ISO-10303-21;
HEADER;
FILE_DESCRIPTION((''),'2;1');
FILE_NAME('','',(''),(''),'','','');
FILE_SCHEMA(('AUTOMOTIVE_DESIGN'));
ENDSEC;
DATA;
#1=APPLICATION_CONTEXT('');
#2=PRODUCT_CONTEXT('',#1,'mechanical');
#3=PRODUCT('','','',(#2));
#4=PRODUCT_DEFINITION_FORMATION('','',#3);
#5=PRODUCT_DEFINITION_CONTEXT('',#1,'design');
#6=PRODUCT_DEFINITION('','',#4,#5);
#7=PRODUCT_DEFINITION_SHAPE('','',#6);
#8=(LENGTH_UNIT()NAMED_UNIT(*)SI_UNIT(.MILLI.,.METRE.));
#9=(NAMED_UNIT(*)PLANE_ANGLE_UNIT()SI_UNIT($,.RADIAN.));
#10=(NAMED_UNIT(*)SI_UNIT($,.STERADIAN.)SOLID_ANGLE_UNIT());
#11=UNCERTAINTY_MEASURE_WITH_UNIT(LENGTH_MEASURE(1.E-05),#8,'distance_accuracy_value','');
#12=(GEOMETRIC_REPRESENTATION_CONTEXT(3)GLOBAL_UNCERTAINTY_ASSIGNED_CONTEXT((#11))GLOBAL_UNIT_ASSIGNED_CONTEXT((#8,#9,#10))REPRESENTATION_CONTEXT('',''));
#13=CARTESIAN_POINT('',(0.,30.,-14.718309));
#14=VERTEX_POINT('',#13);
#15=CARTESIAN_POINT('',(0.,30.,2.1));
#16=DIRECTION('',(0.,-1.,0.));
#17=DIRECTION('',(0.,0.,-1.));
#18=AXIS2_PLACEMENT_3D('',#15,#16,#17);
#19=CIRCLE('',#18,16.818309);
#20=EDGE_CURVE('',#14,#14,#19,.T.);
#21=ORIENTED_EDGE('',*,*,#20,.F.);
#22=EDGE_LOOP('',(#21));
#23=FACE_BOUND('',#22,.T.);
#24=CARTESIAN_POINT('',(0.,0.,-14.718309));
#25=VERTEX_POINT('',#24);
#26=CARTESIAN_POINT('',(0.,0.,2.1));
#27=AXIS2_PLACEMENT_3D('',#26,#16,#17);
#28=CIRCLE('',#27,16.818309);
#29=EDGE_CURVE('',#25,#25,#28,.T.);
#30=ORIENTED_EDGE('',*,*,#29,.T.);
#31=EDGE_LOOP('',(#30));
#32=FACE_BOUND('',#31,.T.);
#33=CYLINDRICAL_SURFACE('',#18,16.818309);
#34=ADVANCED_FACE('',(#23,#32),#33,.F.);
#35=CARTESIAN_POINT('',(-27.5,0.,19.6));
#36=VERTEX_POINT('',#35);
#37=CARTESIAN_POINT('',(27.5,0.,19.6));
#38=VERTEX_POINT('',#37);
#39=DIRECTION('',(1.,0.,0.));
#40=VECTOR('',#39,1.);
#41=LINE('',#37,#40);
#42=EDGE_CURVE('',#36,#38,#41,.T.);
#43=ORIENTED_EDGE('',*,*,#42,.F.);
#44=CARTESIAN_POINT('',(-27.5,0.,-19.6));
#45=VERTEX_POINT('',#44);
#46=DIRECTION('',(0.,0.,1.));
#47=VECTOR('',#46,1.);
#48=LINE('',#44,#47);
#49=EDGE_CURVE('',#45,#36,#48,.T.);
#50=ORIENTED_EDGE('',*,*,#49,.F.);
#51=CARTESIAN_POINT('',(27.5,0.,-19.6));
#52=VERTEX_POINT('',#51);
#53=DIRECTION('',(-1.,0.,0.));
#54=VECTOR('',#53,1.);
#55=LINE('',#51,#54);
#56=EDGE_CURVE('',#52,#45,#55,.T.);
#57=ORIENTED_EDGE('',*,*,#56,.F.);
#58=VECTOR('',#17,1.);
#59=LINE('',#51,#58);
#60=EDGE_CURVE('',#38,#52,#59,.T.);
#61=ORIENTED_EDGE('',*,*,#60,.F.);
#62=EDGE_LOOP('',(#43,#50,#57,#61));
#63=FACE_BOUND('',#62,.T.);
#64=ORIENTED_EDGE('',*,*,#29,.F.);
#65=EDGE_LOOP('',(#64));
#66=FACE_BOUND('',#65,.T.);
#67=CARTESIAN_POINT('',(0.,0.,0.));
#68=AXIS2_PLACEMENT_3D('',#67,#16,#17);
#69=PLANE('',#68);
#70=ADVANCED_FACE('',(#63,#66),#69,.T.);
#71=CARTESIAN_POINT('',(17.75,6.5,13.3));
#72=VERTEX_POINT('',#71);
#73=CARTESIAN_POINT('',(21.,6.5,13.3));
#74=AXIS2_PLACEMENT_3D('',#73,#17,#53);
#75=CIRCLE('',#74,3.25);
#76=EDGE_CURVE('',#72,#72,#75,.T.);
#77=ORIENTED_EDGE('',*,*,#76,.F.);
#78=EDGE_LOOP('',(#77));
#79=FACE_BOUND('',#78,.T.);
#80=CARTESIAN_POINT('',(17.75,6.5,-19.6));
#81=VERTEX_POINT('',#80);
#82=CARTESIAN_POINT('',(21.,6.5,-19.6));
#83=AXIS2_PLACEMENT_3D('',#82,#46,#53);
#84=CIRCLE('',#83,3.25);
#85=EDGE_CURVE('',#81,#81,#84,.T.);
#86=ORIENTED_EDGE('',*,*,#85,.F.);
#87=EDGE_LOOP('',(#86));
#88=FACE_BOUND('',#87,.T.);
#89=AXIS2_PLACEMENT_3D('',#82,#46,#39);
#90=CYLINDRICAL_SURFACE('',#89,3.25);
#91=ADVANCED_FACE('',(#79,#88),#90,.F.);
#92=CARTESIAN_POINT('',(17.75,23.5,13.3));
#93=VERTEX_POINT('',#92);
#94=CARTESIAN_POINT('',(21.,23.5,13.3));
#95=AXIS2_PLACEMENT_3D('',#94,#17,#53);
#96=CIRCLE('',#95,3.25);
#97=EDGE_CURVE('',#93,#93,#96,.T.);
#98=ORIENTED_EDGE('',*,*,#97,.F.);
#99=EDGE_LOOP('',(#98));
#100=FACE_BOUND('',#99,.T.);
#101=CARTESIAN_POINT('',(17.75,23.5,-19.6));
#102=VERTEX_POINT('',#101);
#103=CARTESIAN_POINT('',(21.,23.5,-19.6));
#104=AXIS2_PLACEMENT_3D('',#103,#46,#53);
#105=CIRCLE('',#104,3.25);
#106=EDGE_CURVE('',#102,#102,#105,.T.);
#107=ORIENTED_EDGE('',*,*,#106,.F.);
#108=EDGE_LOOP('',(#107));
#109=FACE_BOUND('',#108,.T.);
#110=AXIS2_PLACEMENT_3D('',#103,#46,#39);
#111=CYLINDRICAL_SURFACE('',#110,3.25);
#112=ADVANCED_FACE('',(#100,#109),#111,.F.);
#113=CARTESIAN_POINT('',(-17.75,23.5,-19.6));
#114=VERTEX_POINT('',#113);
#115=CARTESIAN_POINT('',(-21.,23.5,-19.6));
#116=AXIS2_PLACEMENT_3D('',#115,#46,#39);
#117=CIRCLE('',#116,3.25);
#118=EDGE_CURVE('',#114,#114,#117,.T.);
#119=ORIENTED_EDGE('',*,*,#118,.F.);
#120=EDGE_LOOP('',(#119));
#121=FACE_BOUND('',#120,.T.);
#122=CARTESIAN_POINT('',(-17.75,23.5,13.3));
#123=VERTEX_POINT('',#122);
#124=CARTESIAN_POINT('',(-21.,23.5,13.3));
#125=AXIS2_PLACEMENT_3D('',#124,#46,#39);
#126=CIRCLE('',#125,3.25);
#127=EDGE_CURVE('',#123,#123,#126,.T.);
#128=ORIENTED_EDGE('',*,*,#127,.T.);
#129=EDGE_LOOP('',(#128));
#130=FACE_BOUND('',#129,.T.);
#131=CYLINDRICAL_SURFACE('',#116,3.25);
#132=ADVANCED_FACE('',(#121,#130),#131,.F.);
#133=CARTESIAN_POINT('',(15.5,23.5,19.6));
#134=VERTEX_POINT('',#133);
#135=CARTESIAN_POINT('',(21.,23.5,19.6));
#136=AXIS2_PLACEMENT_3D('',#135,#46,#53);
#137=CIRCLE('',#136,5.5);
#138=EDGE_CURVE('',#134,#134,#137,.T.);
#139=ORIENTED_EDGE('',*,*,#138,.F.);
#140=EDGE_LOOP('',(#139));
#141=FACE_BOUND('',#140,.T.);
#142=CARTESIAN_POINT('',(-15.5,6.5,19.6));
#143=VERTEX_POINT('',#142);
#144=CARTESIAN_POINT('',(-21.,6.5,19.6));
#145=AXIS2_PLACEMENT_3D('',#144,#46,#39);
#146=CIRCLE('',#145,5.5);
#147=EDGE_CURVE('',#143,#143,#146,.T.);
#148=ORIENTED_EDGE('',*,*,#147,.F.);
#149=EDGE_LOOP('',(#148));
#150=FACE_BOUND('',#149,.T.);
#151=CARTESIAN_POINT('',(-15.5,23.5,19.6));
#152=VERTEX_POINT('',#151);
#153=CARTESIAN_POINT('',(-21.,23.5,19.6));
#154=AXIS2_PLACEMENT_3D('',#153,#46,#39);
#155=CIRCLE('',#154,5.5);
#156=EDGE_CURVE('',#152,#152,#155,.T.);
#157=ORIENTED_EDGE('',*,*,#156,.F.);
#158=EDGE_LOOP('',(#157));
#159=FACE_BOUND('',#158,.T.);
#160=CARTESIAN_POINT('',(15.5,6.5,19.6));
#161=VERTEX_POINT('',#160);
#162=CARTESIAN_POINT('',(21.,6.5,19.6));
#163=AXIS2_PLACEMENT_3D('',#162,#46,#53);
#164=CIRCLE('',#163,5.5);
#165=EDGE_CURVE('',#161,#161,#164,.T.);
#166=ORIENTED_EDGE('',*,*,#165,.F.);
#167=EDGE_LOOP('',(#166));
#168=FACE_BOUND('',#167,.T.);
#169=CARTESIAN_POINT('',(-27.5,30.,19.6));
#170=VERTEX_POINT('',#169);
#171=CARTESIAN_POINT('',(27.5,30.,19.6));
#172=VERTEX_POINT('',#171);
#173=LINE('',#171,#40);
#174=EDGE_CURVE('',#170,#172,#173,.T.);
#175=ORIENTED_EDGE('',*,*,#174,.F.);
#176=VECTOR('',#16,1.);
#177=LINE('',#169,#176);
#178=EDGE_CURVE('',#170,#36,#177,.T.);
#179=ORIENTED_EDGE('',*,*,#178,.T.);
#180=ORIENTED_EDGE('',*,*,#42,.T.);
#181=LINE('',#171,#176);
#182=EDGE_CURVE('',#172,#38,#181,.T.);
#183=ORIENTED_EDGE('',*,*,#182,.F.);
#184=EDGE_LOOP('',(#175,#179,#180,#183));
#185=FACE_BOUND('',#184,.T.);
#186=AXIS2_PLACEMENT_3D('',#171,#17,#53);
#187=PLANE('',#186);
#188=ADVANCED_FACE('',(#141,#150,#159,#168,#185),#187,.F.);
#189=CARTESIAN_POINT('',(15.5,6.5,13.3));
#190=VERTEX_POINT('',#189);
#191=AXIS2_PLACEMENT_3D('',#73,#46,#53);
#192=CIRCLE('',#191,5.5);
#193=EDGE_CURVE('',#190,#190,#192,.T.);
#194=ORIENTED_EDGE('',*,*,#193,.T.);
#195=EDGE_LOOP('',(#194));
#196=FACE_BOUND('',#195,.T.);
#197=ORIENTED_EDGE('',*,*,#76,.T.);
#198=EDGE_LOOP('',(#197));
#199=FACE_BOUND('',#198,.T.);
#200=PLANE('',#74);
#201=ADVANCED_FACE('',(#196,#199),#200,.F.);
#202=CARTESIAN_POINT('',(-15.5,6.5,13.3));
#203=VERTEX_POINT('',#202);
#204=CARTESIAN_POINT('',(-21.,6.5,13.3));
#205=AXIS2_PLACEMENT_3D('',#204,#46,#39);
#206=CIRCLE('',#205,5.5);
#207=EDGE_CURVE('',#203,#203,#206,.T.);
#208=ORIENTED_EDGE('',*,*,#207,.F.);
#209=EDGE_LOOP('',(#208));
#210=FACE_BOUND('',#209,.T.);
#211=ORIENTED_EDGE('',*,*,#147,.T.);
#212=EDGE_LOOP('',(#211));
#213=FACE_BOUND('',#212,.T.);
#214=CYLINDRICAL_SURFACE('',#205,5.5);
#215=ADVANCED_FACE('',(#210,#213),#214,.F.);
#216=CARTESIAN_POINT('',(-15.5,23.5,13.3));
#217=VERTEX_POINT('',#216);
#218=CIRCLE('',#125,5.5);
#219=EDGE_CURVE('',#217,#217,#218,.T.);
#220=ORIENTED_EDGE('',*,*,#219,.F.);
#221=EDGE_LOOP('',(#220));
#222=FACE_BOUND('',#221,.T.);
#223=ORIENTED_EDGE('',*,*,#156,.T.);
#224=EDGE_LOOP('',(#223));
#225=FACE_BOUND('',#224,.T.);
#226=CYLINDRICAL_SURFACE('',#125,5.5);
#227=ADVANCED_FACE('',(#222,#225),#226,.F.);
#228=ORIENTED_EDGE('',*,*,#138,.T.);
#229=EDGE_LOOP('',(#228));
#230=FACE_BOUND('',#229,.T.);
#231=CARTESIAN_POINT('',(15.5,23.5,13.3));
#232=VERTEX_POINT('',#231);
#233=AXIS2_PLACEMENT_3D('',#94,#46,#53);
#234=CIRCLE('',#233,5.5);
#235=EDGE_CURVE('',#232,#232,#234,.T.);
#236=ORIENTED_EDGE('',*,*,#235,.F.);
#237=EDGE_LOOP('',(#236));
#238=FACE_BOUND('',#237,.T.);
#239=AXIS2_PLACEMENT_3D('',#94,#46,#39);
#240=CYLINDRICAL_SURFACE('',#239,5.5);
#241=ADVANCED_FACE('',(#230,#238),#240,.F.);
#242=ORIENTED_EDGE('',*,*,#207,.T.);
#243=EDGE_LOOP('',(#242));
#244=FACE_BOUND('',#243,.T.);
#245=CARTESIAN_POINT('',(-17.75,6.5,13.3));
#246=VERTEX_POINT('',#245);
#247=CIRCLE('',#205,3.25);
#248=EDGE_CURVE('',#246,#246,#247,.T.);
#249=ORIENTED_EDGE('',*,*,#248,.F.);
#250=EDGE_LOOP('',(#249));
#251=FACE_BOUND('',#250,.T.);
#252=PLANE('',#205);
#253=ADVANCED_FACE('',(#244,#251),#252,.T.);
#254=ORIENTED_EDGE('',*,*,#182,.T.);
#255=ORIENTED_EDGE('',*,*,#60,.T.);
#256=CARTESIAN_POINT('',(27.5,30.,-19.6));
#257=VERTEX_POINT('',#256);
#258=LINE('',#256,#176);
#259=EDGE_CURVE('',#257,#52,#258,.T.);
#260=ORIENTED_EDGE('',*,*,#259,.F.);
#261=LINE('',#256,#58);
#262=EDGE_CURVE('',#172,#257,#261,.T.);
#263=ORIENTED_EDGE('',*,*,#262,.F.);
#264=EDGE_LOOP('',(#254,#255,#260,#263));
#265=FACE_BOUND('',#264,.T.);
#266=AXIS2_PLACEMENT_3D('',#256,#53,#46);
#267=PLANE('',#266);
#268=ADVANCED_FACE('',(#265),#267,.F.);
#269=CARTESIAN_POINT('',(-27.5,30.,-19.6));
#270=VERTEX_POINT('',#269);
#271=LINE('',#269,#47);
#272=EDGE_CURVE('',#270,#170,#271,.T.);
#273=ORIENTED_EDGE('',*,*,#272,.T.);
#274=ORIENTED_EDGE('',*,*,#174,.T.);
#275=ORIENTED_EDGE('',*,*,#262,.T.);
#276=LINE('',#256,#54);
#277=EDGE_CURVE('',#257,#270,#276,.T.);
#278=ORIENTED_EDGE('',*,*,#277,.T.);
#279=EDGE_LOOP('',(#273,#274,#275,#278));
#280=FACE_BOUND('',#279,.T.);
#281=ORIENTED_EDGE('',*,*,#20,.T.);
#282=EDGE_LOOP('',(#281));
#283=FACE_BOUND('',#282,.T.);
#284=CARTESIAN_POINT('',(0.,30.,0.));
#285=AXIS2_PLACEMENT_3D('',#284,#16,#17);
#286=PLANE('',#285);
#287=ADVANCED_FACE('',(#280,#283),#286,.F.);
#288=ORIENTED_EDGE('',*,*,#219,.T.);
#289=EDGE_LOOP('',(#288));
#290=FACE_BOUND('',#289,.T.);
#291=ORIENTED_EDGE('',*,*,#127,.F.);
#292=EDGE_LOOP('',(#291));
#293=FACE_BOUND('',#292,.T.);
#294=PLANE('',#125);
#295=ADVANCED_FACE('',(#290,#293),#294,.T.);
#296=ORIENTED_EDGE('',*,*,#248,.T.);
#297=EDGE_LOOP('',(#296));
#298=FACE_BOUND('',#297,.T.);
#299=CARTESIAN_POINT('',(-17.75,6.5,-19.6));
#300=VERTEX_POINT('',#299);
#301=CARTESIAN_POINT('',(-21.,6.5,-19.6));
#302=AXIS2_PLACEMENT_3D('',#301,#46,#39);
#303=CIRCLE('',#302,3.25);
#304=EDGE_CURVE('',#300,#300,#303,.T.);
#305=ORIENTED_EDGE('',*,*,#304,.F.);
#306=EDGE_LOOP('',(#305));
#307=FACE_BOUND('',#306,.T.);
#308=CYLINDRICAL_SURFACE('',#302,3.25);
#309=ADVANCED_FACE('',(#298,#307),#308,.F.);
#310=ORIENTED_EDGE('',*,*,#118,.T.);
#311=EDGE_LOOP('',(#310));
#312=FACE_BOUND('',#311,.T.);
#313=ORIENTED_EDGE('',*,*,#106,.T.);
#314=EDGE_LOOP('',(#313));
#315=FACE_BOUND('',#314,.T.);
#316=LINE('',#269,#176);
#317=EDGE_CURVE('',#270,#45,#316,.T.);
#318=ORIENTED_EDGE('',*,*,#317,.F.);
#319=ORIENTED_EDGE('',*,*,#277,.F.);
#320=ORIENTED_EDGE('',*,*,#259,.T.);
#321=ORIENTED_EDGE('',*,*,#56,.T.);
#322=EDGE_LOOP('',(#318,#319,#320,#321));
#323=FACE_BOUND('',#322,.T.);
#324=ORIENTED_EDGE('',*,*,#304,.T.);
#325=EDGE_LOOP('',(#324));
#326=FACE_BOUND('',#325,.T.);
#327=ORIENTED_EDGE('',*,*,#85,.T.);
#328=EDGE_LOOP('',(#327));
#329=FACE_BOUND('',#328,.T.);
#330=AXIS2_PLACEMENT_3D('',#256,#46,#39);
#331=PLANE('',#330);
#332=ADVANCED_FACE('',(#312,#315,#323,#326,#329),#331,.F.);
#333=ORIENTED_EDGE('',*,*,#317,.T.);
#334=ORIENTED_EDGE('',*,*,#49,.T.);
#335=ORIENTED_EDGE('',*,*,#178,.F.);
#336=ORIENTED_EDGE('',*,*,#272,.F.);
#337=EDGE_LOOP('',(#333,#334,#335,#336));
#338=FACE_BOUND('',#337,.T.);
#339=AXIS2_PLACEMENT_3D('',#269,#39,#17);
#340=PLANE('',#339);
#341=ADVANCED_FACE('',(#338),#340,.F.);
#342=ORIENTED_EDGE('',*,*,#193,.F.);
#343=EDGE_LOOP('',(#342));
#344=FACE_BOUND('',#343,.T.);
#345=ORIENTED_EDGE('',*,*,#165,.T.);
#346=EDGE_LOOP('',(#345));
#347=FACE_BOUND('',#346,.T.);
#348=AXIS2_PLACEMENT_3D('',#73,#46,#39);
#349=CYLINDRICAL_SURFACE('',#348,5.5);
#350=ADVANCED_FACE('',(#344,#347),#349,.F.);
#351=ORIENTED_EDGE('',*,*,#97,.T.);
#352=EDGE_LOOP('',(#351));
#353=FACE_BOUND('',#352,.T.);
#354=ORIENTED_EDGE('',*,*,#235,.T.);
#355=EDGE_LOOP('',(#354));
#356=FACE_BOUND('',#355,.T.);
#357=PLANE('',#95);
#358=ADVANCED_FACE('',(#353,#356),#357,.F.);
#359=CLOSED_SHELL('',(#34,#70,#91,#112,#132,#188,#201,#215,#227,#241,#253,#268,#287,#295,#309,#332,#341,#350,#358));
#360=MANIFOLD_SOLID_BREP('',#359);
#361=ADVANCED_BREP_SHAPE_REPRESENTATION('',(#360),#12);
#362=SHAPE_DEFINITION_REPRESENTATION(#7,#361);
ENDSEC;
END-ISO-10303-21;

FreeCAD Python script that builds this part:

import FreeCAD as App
import Part
import Sketcher
from FreeCAD import Vector
Q = App.Units.Quantity

doc = App.newDocument("Part")
params = doc.addObject("Spreadsheet::Sheet", "Params")
for row, (alias, value) in enumerate([
    ("sketch1_width", "55 mm"),
    ("sketch1_height", "39.2 mm"),
    ("pad1_length", "30 mm"),
    ("sketch3_diameter", "11 mm"),
    ("pocket2_length", "6.3 mm"),
    ("sketch4_diameter", "6.5 mm"),
], start=1):
    params.set(f"A{row}", alias)
    params.set(f"B{row}", "=" + value)
    params.setAlias(f"B{row}", alias)

body = doc.addObject("PartDesign::Body", "Body")

# Sketch on XZ plane
sketch1 = body.newObject("Sketcher::SketchObject", "Sketch")
sketch1.AttachmentSupport = (doc.getObject("XZ_Plane"), [""])
sketch1.MapMode = "FlatFace"
sketch1.addGeometry(Part.LineSegment(Vector(-28, -20, 0), Vector(-28, 20, 0)), False)
sketch1.addGeometry(Part.LineSegment(Vector(-28, 20, 0), Vector(28, 20, 0)), False)
sketch1.addGeometry(Part.LineSegment(Vector(28, 20, 0), Vector(28, -20, 0)), False)
sketch1.addGeometry(Part.LineSegment(Vector(28, -20, 0), Vector(-28, -20, 0)), False)
sketch1.addConstraint(Sketcher.Constraint("Coincident", 0, 2, 1, 1))
sketch1.addConstraint(Sketcher.Constraint("Coincident", 1, 2, 2, 1))
sketch1.addConstraint(Sketcher.Constraint("Coincident", 2, 2, 3, 1))
sketch1.addConstraint(Sketcher.Constraint("Coincident", 3, 2, 0, 1))
sketch1.addConstraint(Sketcher.Constraint("Vertical", 0))
sketch1.addConstraint(Sketcher.Constraint("Horizontal", 1))
sketch1.addConstraint(Sketcher.Constraint("Vertical", 2))
sketch1.addConstraint(Sketcher.Constraint("Horizontal", 3))
sketch1.addConstraint(Sketcher.Constraint("Symmetric", 0, 2, 2, 2, -1, 1))
sketch1.addConstraint(Sketcher.Constraint("DistanceX", 1, 1, 1, 2, Q("55 mm")))
sketch1.addConstraint(Sketcher.Constraint("DistanceY", 0, 1, 0, 2, Q("39.2 mm")))
sketch1.setExpression("Constraints[9]", "Params.sketch1_width")
sketch1.setExpression("Constraints[10]", "Params.sketch1_height")
pad1 = body.newObject("PartDesign::Pad", "Pad")
pad1.Profile = sketch1
pad1.setExpression("Length", "Params.pad1_length")
pad1.Reversed = True

# Sketch on XZ plane
sketch2 = body.newObject("Sketcher::SketchObject", "Sketch001")
sketch2.AttachmentSupport = (doc.getObject("XZ_Plane"), [""])
sketch2.MapMode = "FlatFace"
sketch2.addGeometry(Part.Circle(Vector(0, 2, 0), Vector(0, 0, 1), 17), False)
sketch2.addConstraint(Sketcher.Constraint("PointOnObject", 0, 3, -2))
sketch2.addConstraint(Sketcher.Constraint("DistanceY", -1, 1, 0, 3, Q("2.1 mm")))
sketch2.addConstraint(Sketcher.Constraint("Diameter", 0, Q("33.636617 mm")))
pocket1 = body.newObject("PartDesign::Pocket", "Pocket")
pocket1.Profile = sketch2
pocket1.Type = "ThroughAll"

# Sketch on XY plane
sketch3 = body.newObject("Sketcher::SketchObject", "Sketch002")
sketch3.AttachmentSupport = (doc.getObject("XY_Plane"), [""])
sketch3.MapMode = "FlatFace"
sketch3.AttachmentOffset = App.Placement(Vector(0, 0, 19.6), App.Rotation())
sketch3.addGeometry(Part.Circle(Vector(-21, 24, 0), Vector(0, 0, 1), 6), False)
sketch3.addGeometry(Part.Circle(Vector(-21, 6, 0), Vector(0, 0, 1), 6), False)
sketch3.addGeometry(Part.Circle(Vector(21, 6, 0), Vector(0, 0, 1), 6), False)
sketch3.addGeometry(Part.Circle(Vector(21, 24, 0), Vector(0, 0, 1), 6), False)
sketch3.addConstraint(Sketcher.Constraint("Equal", 0, 1))
sketch3.addConstraint(Sketcher.Constraint("Equal", 1, 2))
sketch3.addConstraint(Sketcher.Constraint("Equal", 2, 3))
sketch3.addConstraint(Sketcher.Constraint("Symmetric", 1, 3, 2, 3, -2))
sketch3.addConstraint(Sketcher.Constraint("Symmetric", 0, 3, 3, 3, -2))
sketch3.addConstraint(Sketcher.Constraint("Vertical", 0, 3, 1, 3))
sketch3.addConstraint(Sketcher.Constraint("Diameter", 0, Q("11 mm")))
sketch3.addConstraint(Sketcher.Constraint("DistanceX", 0, 3, -1, 1, Q("21 mm")))
sketch3.addConstraint(Sketcher.Constraint("DistanceY", 1, 3, 0, 3, Q("17 mm")))
sketch3.addConstraint(Sketcher.Constraint("DistanceY", -1, 1, 0, 3, Q("23.5 mm")))
sketch3.setExpression("Constraints[6]", "Params.sketch3_diameter")
pocket2 = body.newObject("PartDesign::Pocket", "Pocket001")
pocket2.Profile = sketch3
pocket2.setExpression("Length", "Params.pocket2_length")

# Sketch on XY plane
sketch4 = body.newObject("Sketcher::SketchObject", "Sketch003")
sketch4.AttachmentSupport = (doc.getObject("XY_Plane"), [""])
sketch4.MapMode = "FlatFace"
sketch4.AttachmentOffset = App.Placement(Vector(0, 0, 19.6), App.Rotation())
sketch4.addGeometry(Part.Circle(Vector(-21, 6.5, 0), Vector(0, 0, 1), 3.2), False)
sketch4.addGeometry(Part.Circle(Vector(-21, 23.5, 0), Vector(0, 0, 1), 3.2), False)
sketch4.addGeometry(Part.Circle(Vector(21, 23.5, 0), Vector(0, 0, 1), 3.2), False)
sketch4.addGeometry(Part.Circle(Vector(21, 6.5, 0), Vector(0, 0, 1), 3.2), False)
sketch4.addConstraint(Sketcher.Constraint("Equal", 0, 1))
sketch4.addConstraint(Sketcher.Constraint("Equal", 1, 2))
sketch4.addConstraint(Sketcher.Constraint("Equal", 2, 3))
sketch4.addConstraint(Sketcher.Constraint("Symmetric", 1, 3, 2, 3, -2))
sketch4.addConstraint(Sketcher.Constraint("Symmetric", 0, 3, 3, 3, -2))
sketch4.addConstraint(Sketcher.Constraint("Vertical", 0, 3, 1, 3))
sketch4.addConstraint(Sketcher.Constraint("Diameter", 0, Q("6.5 mm")))
sketch4.addConstraint(Sketcher.Constraint("DistanceX", 0, 3, -1, 1, Q("21 mm")))
sketch4.addConstraint(Sketcher.Constraint("DistanceY", 0, 3, 1, 3, Q("17 mm")))
sketch4.addConstraint(Sketcher.Constraint("DistanceY", -1, 1, 0, 3, Q("6.5 mm")))
sketch4.setExpression("Constraints[6]", "Params.sketch4_diameter")
pocket3 = body.newObject("PartDesign::Pocket", "Pocket002")
pocket3.Profile = sketch4
pocket3.Type = "ThroughAll"

doc.recompute()
